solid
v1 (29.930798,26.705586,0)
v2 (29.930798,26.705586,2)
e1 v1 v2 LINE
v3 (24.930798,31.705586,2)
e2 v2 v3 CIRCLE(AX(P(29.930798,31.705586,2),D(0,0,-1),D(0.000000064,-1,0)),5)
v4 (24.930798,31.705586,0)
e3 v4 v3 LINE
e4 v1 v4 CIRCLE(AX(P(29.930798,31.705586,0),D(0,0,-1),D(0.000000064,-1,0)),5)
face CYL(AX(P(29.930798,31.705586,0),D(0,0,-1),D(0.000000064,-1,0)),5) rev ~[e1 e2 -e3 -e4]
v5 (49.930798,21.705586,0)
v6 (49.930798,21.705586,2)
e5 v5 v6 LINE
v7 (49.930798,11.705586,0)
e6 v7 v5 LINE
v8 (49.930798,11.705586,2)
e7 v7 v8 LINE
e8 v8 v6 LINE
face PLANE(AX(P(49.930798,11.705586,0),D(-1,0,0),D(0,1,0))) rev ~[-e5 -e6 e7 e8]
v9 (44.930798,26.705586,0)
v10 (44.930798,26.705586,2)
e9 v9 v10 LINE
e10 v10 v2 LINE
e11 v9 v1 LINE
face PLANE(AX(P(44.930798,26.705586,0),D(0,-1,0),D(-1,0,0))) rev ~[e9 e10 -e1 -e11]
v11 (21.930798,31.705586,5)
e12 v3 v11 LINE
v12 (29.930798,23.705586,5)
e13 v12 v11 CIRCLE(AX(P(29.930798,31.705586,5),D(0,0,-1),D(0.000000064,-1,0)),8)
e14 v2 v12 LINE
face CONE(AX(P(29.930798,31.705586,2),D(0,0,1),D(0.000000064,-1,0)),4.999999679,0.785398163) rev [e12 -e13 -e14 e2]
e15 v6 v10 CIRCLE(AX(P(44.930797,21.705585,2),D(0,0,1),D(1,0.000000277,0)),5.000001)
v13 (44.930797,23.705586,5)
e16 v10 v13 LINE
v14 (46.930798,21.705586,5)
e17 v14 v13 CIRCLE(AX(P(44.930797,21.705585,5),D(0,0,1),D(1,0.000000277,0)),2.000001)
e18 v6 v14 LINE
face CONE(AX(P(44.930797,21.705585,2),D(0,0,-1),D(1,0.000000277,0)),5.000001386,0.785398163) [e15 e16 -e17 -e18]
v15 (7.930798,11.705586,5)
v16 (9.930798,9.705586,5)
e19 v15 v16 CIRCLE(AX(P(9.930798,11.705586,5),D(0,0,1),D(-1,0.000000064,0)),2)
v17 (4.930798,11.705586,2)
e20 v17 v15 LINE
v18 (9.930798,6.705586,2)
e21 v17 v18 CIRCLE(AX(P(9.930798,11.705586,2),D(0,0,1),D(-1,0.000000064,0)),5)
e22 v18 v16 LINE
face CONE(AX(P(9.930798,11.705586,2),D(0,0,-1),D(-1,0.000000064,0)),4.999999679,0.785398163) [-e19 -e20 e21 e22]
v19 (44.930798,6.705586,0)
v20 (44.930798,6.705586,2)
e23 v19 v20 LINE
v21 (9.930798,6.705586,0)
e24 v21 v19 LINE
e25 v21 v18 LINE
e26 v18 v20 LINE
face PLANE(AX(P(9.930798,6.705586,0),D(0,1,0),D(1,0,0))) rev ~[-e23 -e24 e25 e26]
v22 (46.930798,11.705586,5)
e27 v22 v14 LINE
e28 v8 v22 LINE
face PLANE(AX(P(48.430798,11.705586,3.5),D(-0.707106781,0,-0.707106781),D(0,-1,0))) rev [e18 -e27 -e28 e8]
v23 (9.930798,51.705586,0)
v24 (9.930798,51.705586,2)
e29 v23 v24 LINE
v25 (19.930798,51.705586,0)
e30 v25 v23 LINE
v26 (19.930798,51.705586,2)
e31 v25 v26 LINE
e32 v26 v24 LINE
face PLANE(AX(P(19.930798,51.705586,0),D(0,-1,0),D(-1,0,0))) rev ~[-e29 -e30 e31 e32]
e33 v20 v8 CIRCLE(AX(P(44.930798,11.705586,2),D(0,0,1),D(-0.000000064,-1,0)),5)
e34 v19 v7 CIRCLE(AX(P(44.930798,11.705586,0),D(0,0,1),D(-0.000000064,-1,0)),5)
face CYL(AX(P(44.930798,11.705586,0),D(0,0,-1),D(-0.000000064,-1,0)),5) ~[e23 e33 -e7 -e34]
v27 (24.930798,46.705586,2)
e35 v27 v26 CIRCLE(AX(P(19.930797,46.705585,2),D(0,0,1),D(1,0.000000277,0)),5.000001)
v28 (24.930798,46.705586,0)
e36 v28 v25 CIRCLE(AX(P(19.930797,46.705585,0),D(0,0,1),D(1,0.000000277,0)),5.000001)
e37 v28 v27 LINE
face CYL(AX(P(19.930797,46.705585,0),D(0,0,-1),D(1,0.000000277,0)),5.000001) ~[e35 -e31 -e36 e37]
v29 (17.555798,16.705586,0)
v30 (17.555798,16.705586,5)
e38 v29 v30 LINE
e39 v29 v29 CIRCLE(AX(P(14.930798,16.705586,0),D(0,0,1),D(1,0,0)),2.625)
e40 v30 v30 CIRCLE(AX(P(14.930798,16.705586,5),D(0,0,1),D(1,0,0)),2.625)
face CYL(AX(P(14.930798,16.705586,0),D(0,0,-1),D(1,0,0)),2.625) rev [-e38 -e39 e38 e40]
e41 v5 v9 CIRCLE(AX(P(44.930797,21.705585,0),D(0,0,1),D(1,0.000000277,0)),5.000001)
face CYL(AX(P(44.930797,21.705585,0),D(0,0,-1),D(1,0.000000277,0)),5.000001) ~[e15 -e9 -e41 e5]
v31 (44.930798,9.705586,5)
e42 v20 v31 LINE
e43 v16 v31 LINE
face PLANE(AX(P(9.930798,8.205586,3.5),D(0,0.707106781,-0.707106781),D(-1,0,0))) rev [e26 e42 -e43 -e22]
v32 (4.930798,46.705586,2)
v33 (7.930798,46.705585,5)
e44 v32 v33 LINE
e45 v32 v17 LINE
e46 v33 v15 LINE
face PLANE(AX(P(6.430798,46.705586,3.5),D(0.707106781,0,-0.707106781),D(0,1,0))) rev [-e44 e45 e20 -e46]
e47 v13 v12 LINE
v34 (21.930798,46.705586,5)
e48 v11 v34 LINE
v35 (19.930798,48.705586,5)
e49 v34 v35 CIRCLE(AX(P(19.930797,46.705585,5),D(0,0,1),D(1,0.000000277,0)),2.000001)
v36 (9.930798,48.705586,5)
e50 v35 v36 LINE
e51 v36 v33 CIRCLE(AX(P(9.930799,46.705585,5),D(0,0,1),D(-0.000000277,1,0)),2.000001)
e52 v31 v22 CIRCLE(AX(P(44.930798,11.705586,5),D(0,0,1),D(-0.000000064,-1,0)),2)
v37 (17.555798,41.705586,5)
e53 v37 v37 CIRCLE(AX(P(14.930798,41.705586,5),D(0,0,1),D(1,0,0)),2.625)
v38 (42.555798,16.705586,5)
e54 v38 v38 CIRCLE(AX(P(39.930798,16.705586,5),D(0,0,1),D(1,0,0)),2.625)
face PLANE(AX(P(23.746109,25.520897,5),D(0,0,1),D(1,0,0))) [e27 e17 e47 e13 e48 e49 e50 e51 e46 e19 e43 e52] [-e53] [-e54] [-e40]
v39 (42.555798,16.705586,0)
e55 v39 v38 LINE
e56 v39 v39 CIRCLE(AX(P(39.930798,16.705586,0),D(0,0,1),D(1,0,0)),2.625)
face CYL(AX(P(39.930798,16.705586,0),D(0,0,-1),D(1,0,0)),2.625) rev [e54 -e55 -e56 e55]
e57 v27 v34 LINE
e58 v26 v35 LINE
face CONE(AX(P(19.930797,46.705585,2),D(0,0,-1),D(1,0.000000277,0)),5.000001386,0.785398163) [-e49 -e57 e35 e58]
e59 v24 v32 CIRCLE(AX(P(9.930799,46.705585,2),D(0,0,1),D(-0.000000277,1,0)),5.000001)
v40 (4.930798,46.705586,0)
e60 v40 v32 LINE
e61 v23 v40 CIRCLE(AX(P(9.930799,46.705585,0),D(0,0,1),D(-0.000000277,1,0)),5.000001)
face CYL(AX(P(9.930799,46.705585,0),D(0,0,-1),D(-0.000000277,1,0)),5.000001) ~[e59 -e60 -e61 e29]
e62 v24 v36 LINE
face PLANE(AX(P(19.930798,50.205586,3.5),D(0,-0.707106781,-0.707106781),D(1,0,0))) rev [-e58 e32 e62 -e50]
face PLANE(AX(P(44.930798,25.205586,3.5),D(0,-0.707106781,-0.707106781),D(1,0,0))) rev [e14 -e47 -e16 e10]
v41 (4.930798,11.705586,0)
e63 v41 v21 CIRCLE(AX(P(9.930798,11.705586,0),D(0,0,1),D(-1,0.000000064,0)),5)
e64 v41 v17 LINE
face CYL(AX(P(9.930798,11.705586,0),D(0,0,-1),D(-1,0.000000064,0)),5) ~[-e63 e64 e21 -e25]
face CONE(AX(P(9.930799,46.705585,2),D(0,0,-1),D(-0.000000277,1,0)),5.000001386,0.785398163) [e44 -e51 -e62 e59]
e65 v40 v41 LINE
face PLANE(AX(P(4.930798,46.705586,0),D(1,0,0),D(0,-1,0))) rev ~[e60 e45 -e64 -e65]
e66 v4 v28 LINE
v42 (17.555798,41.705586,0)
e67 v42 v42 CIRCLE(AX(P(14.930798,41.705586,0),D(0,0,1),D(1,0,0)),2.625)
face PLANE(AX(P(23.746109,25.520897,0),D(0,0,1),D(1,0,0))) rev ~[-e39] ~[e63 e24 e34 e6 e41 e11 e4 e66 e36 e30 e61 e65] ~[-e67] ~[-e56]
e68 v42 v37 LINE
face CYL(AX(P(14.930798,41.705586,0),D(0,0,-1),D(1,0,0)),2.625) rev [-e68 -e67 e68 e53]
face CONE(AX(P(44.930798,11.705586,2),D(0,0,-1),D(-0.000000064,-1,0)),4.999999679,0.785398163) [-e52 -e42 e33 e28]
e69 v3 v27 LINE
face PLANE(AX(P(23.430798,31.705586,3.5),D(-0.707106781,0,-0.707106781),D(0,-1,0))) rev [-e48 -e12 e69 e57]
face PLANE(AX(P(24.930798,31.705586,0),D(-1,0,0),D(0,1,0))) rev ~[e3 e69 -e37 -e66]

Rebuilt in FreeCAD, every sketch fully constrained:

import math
import FreeCAD as App
import Part
import Sketcher

V = App.Vector
Q = App.Units.Quantity


def edges_at(feature, points):
    """Names of the edges that pass closest to the given points."""
    edges = feature.Shape.Edges
    near = lambda p: min(range(len(edges)), key=lambda i: edges[i].distToShape(Part.Vertex(*p))[0])
    return sorted({f"Edge{near(p) + 1}" for p in points})

doc = App.newDocument("Part")
params = doc.addObject("Spreadsheet::Sheet", "Params")
for row, (alias, value) in enumerate([
    ("sketch1_radius", "5 mm"),
    ("sketch1_diameter", "5.25 mm"),
    ("sketch1_width", "35 mm"),
    ("sketch1_width2", "15 mm"),
    ("pad1_length", "5 mm"),
    ("chamfer_size", "3 mm"),
], start=1):
    params.set(f"A{row}", alias)
    params.set(f"B{row}", "=" + value)
    params.setAlias(f"B{row}", alias)

body = doc.addObject("PartDesign::Body", "Body")

sketch1 = body.newObject("Sketcher::SketchObject", "Sketch")
sketch1.AttachmentSupport = (doc.getObject("XY_Plane"), [""])
sketch1.MapMode = "FlatFace"
sketch1.addGeometry(Part.ArcOfCircle(Part.Circle(V(9.9, 11.7, 0), V(0, 0, 1), 5), math.radians(180), math.radians(270)), False)
sketch1.addGeometry(Part.LineSegment(V(9.9, 6.7, 0), V(44.9, 6.7, 0)), False)
sketch1.addGeometry(Part.ArcOfCircle(Part.Circle(V(44.9, 11.7, 0), V(0, 0, 1), 5), math.radians(-90), math.radians(0)), False)
sketch1.addGeometry(Part.LineSegment(V(49.9, 11.7, 0), V(49.9, 21.7, 0)), False)
sketch1.addGeometry(Part.ArcOfCircle(Part.Circle(V(44.9, 21.7, 0), V(0, 0, 1), 5), math.radians(0), math.radians(90)), False)
sketch1.addGeometry(Part.LineSegment(V(44.9, 26.7, 0), V(29.9, 26.7, 0)), False)
sketch1.addGeometry(Part.ArcOfCircle(Part.Circle(V(29.9, 31.7, 0), V(0, 0, 1), 5), math.radians(180), math.radians(270)), False)
sketch1.addGeometry(Part.LineSegment(V(24.9, 31.7, 0), V(24.9, 46.7, 0)), False)
sketch1.addGeometry(Part.ArcOfCircle(Part.Circle(V(19.9, 46.7, 0), V(0, 0, 1), 5), math.radians(0), math.radians(90)), False)
sketch1.addGeometry(Part.LineSegment(V(19.9, 51.7, 0), V(9.9, 51.7, 0)), False)
sketch1.addGeometry(Part.ArcOfCircle(Part.Circle(V(9.9, 46.7, 0), V(0, 0, 1), 5), math.radians(90), math.radians(180)), False)
sketch1.addGeometry(Part.LineSegment(V(4.9, 46.7, 0), V(4.9, 11.7, 0)), False)
sketch1.addGeometry(Part.Circle(V(14.9, 16.7, 0), V(0, 0, 1), 2.6), False)
sketch1.addGeometry(Part.Circle(V(39.9, 16.7, 0), V(0, 0, 1), 2.6), False)
sketch1.addGeometry(Part.Circle(V(14.9, 41.7, 0), V(0, 0, 1), 2.6), False)
sketch1.addConstraint(Sketcher.Constraint("Tangent", 0, 2, 1, 1))
sketch1.addConstraint(Sketcher.Constraint("Tangent", 1, 2, 2, 1))
sketch1.addConstraint(Sketcher.Constraint("Tangent", 2, 2, 3, 1))
sketch1.addConstraint(Sketcher.Constraint("Tangent", 3, 2, 4, 1))
sketch1.addConstraint(Sketcher.Constraint("Tangent", 4, 2, 5, 1))
sketch1.addConstraint(Sketcher.Constraint("Tangent", 5, 2, 6, 2))
sketch1.addConstraint(Sketcher.Constraint("Tangent", 6, 1, 7, 1))
sketch1.addConstraint(Sketcher.Constraint("Tangent", 7, 2, 8, 1))
sketch1.addConstraint(Sketcher.Constraint("Tangent", 8, 2, 9, 1))
sketch1.addConstraint(Sketcher.Constraint("Tangent", 9, 2, 10, 1))
sketch1.addConstraint(Sketcher.Constraint("Tangent", 10, 2, 11, 1))
sketch1.addConstraint(Sketcher.Constraint("Tangent", 11, 2, 0, 1))
sketch1.addConstraint(Sketcher.Constraint("Horizontal", 1))
sketch1.addConstraint(Sketcher.Constraint("Vertical", 3))
sketch1.addConstraint(Sketcher.Constraint("Horizontal", 5))
sketch1.addConstraint(Sketcher.Constraint("Vertical", 7))
sketch1.addConstraint(Sketcher.Constraint("Horizontal", 9))
sketch1.addConstraint(Sketcher.Constraint("Vertical", 11))
sketch1.addConstraint(Sketcher.Constraint("Equal", 0, 2))
sketch1.addConstraint(Sketcher.Constraint("Equal", 2, 4))
sketch1.addConstraint(Sketcher.Constraint("Equal", 4, 6))
sketch1.addConstraint(Sketcher.Constraint("Equal", 6, 8))
sketch1.addConstraint(Sketcher.Constraint("Equal", 8, 10))
sketch1.addConstraint(Sketcher.Constraint("Equal", 12, 13))
sketch1.addConstraint(Sketcher.Constraint("Equal", 13, 14))
sketch1.addConstraint(Sketcher.Constraint("Horizontal", 12, 3, 13, 3))
sketch1.addConstraint(Sketcher.Constraint("Vertical", 12, 3, 14, 3))
sketch1.addConstraint(Sketcher.Constraint("Equal", 9, 3))
sketch1.addConstraint(Sketcher.Constraint("Equal", 5, 7))
sketch1.addConstraint(Sketcher.Constraint("Radius", 0, Q("5 mm")))
sketch1.addConstraint(Sketcher.Constraint("Diameter", 12, Q("5.25 mm")))
sketch1.addConstraint(Sketcher.Constraint("DistanceX", 1, 1, 1, 2, Q("35 mm")))
sketch1.addConstraint(Sketcher.Constraint("DistanceX", 5, 2, 5, 1, Q("15 mm")))
sketch1.addConstraint(Sketcher.Constraint("DistanceX", 0, 3, 12, 3, Q("5 mm")))
sketch1.addConstraint(Sketcher.Constraint("DistanceY", 0, 3, 12, 3, Q("5 mm")))
sketch1.addConstraint(Sketcher.Constraint("DistanceX", 13, 3, 4, 3, Q("4.999999 mm")))
sketch1.addConstraint(Sketcher.Constraint("DistanceY", 14, 3, 8, 3, Q("4.999999 mm")))
sketch1.addConstraint(Sketcher.Constraint("DistanceX", -1, 1, 2, 3, Q("44.930798 mm")))
sketch1.addConstraint(Sketcher.Constraint("DistanceY", -1, 1, 0, 3, Q("11.705586 mm")))
sketch1.setExpression("Constraints[29]", "Params.sketch1_radius")
sketch1.setExpression("Constraints[30]", "Params.sketch1_diameter")
sketch1.setExpression("Constraints[31]", "Params.sketch1_width")
sketch1.setExpression("Constraints[32]", "Params.sketch1_width2")
pad1 = body.newObject("PartDesign::Pad", "Pad")
pad1.Profile = sketch1
pad1.setExpression("Length", "Params.pad1_length")
doc.recompute()

chamfer = body.newObject("PartDesign::Chamfer", "Chamfer")
chamfer.Base = (pad1, edges_at(pad1, [
    (14.931, 51.706, 5),
    (23.466, 50.241, 5),
    (24.931, 39.206, 5),
    (26.395, 28.17, 5),
    (37.431, 26.706, 5),
    (48.466, 25.241, 5),
    (49.931, 16.706, 5),
    (48.466, 8.17, 5),
    (27.431, 6.706, 5),
    (6.395, 8.17, 5),
    (4.931, 29.206, 5),
    (6.395, 50.241, 5),
]))
chamfer.setExpression("Size", "Params.chamfer_size")

doc.recompute()
